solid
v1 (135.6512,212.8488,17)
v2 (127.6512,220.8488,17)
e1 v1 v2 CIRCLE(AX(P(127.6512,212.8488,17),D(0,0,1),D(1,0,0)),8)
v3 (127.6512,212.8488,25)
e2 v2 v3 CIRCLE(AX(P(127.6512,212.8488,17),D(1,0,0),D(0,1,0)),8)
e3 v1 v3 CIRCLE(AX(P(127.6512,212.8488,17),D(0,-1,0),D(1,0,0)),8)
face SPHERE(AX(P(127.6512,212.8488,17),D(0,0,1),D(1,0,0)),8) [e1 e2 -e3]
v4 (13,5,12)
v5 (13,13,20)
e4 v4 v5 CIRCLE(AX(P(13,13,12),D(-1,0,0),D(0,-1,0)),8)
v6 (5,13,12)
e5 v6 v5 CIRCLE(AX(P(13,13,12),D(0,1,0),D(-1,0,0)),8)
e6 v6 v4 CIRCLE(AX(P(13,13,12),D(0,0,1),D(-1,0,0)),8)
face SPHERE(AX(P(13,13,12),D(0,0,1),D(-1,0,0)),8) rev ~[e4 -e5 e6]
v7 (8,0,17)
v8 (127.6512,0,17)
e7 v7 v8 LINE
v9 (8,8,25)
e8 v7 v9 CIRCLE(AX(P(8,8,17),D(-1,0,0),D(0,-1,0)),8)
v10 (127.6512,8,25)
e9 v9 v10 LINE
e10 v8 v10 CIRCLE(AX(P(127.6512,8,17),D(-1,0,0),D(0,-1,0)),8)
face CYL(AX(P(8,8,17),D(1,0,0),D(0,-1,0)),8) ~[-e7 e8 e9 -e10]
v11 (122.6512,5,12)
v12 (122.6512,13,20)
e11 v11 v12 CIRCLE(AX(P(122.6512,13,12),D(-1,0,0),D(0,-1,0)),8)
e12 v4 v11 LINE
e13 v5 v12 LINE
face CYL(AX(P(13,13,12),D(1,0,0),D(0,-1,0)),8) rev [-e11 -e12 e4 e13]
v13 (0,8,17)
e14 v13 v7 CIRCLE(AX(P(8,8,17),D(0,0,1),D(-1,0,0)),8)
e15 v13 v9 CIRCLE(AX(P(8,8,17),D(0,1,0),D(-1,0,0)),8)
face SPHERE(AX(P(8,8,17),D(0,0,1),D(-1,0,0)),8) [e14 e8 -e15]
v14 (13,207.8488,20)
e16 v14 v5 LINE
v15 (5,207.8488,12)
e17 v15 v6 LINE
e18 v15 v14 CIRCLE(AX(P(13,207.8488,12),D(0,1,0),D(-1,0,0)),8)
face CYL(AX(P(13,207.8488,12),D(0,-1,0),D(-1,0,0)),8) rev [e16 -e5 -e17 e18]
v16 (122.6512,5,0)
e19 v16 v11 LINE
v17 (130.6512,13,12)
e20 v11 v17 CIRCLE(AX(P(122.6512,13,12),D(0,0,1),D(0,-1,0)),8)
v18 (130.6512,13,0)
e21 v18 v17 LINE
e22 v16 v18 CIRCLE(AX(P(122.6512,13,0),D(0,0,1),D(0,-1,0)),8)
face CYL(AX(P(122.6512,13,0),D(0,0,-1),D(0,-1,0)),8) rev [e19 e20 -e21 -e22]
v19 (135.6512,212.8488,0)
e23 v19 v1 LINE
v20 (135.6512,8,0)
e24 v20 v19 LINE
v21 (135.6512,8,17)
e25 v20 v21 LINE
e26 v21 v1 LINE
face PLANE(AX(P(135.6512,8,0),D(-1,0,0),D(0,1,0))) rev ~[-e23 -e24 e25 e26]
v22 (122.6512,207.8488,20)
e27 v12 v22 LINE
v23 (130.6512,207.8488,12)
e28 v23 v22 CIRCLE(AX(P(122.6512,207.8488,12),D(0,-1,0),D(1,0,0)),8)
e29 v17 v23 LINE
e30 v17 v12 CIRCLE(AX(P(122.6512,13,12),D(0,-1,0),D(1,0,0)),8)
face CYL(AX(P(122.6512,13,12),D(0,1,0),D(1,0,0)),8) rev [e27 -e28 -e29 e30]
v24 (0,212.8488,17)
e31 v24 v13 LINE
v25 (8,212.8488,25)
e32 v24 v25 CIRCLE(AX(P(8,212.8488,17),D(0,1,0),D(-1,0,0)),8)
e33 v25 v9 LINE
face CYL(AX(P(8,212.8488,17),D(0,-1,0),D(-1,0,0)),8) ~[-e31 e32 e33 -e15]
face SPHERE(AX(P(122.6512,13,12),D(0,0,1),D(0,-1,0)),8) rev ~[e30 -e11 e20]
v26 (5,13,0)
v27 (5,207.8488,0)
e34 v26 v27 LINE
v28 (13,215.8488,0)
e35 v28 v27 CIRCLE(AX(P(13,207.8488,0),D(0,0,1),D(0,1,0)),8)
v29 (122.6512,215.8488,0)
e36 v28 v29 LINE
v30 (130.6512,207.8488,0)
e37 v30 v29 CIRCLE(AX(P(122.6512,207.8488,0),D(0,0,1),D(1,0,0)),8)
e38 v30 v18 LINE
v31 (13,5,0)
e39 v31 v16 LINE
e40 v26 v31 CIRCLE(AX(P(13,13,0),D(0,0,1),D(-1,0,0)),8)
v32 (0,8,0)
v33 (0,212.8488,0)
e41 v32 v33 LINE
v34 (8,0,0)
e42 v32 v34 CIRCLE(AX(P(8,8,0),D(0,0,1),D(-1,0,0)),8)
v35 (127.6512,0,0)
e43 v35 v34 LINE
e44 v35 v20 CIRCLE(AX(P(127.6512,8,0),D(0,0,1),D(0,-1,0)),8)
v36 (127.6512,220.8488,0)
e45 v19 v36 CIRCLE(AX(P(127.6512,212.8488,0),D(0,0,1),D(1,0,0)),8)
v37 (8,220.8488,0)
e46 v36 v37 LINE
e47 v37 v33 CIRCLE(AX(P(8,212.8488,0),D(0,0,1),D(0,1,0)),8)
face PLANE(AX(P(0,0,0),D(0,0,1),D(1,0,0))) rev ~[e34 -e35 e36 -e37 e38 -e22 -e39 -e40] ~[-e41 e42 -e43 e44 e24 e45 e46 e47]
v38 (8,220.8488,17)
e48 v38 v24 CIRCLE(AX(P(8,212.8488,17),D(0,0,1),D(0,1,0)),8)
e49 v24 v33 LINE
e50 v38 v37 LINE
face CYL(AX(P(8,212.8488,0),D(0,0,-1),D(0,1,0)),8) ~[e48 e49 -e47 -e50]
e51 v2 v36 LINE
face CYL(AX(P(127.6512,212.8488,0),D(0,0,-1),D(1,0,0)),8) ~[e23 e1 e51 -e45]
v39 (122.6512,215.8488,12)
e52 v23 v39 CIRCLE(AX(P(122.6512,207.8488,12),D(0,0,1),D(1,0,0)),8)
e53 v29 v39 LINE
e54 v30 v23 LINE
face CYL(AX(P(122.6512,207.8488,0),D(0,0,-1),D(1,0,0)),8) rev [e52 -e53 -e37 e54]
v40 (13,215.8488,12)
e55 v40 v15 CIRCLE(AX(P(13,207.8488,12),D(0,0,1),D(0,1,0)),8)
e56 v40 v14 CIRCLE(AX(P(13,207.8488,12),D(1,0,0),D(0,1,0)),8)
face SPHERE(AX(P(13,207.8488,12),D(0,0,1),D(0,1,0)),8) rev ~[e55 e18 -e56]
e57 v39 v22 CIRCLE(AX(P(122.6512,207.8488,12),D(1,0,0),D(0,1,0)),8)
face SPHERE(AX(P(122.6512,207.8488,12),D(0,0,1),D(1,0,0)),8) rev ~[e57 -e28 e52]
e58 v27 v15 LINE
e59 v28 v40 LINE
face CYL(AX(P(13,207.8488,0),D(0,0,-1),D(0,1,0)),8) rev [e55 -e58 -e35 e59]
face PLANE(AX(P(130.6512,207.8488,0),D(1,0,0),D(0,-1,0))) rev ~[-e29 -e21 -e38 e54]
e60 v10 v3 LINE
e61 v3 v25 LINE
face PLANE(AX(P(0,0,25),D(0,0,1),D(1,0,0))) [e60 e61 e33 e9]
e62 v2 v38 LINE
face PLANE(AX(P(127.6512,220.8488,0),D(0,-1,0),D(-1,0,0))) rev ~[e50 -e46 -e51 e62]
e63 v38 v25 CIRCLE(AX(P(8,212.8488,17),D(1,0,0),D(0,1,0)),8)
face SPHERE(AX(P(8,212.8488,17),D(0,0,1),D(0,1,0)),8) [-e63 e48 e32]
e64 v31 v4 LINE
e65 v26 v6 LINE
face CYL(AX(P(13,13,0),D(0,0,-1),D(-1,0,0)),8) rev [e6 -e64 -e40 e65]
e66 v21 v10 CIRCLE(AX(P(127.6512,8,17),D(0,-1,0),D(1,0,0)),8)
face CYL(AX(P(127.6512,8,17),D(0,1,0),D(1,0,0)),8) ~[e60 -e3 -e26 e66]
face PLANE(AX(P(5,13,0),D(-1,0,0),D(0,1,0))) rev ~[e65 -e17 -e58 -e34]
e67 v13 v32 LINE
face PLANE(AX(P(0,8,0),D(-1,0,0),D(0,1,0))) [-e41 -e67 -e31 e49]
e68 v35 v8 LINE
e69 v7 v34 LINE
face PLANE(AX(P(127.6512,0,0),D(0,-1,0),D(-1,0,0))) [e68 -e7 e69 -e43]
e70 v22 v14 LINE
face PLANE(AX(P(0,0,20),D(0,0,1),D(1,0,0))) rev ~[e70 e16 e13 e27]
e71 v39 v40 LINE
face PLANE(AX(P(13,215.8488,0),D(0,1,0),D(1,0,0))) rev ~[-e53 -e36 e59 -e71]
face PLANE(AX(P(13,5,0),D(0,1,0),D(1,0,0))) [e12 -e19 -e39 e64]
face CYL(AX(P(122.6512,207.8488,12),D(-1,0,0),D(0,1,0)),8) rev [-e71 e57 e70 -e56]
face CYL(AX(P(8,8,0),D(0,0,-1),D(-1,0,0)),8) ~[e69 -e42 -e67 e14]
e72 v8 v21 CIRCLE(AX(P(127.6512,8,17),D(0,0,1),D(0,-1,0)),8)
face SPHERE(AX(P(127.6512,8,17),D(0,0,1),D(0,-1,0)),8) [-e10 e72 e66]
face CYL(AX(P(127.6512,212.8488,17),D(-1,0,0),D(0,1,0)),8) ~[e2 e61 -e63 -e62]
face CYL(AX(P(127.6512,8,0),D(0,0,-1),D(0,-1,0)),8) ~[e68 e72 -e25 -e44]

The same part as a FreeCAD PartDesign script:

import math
import FreeCAD as App
import Part
import Sketcher
from FreeCAD import Vector


def edges_at(feature, points):
    """Names of the edges that pass closest to the given points."""
    edges = feature.Shape.Edges
    near = lambda p: min(range(len(edges)), key=lambda i: edges[i].distToShape(Part.Vertex(*p))[0])
    return sorted({f"Edge{near(p) + 1}" for p in points})

doc = App.newDocument("Part")
body = doc.addObject("PartDesign::Body", "Body")

# Sketch on XY plane
sketch1 = doc.addObject("Sketcher::SketchObject", "Sketch")
body.addObject(sketch1)
sketch1.AttachmentSupport = (doc.XY_Plane, [""])
sketch1.MapMode = "FlatFace"
sketch1.addGeometry(Part.LineSegment(Vector(8, 0, 0), Vector(128, 0, 0)), False)
sketch1.addGeometry(Part.ArcOfCircle(Part.Circle(Vector(128, 8, 0), Vector(0, 0, 1), 8), math.radians(-90), math.radians(0)), False)
sketch1.addGeometry(Part.LineSegment(Vector(136, 8, 0), Vector(136, 213, 0)), False)
sketch1.addGeometry(Part.ArcOfCircle(Part.Circle(Vector(128, 213, 0), Vector(0, 0, 1), 8), math.radians(0), math.radians(90)), False)
sketch1.addGeometry(Part.LineSegment(Vector(128, 221, 0), Vector(8, 221, 0)), False)
sketch1.addGeometry(Part.ArcOfCircle(Part.Circle(Vector(8, 213, 0), Vector(0, 0, 1), 8), math.radians(90), math.radians(180)), False)
sketch1.addGeometry(Part.LineSegment(Vector(0, 213, 0), Vector(0, 8, 0)), False)
sketch1.addGeometry(Part.ArcOfCircle(Part.Circle(Vector(8, 8, 0), Vector(0, 0, 1), 8), math.radians(180), math.radians(270)), False)
sketch1.addGeometry(Part.ArcOfCircle(Part.Circle(Vector(13, 13, 0), Vector(0, 0, 1), 8), math.radians(180), math.radians(270)), False)
sketch1.addGeometry(Part.LineSegment(Vector(5, 13, 0), Vector(5, 208, 0)), False)
sketch1.addGeometry(Part.ArcOfCircle(Part.Circle(Vector(13, 208, 0), Vector(0, 0, 1), 8), math.radians(90), math.radians(180)), False)
sketch1.addGeometry(Part.LineSegment(Vector(13, 216, 0), Vector(123, 216, 0)), False)
sketch1.addGeometry(Part.ArcOfCircle(Part.Circle(Vector(123, 208, 0), Vector(0, 0, 1), 8), math.radians(0), math.radians(90)), False)
sketch1.addGeometry(Part.LineSegment(Vector(131, 208, 0), Vector(131, 13, 0)), False)
sketch1.addGeometry(Part.ArcOfCircle(Part.Circle(Vector(123, 13, 0), Vector(0, 0, 1), 8), math.radians(-90), math.radians(0)), False)
sketch1.addGeometry(Part.LineSegment(Vector(123, 5, 0), Vector(13, 5, 0)), False)
sketch1.addConstraint(Sketcher.Constraint("Tangent", 0, 2, 1, 1))
sketch1.addConstraint(Sketcher.Constraint("Tangent", 1, 2, 2, 1))
sketch1.addConstraint(Sketcher.Constraint("Tangent", 2, 2, 3, 1))
sketch1.addConstraint(Sketcher.Constraint("Tangent", 3, 2, 4, 1))
sketch1.addConstraint(Sketcher.Constraint("Tangent", 4, 2, 5, 1))
sketch1.addConstraint(Sketcher.Constraint("Tangent", 5, 2, 6, 1))
sketch1.addConstraint(Sketcher.Constraint("Tangent", 6, 2, 7, 1))
sketch1.addConstraint(Sketcher.Constraint("Tangent", 7, 2, 0, 1))
sketch1.addConstraint(Sketcher.Constraint("Tangent", 8, 1, 9, 1))
sketch1.addConstraint(Sketcher.Constraint("Tangent", 9, 2, 10, 2))
sketch1.addConstraint(Sketcher.Constraint("Tangent", 10, 1, 11, 1))
sketch1.addConstraint(Sketcher.Constraint("Tangent", 11, 2, 12, 2))
sketch1.addConstraint(Sketcher.Constraint("Tangent", 12, 1, 13, 1))
sketch1.addConstraint(Sketcher.Constraint("Tangent", 13, 2, 14, 2))
sketch1.addConstraint(Sketcher.Constraint("Tangent", 14, 1, 15, 1))
sketch1.addConstraint(Sketcher.Constraint("Tangent", 15, 2, 8, 2))
sketch1.addConstraint(Sketcher.Constraint("Horizontal", 0))
sketch1.addConstraint(Sketcher.Constraint("Vertical", 2))
sketch1.addConstraint(Sketcher.Constraint("Horizontal", 4))
sketch1.addConstraint(Sketcher.Constraint("Vertical", 6))
sketch1.addConstraint(Sketcher.Constraint("Vertical", 9))
sketch1.addConstraint(Sketcher.Constraint("Horizontal", 11))
sketch1.addConstraint(Sketcher.Constraint("Vertical", 13))
sketch1.addConstraint(Sketcher.Constraint("Horizontal", 15))
sketch1.addConstraint(Sketcher.Constraint("Equal", 1, 3))
sketch1.addConstraint(Sketcher.Constraint("Equal", 3, 5))
sketch1.addConstraint(Sketcher.Constraint("Equal", 5, 7))
sketch1.addConstraint(Sketcher.Constraint("Equal", 7, 8))
sketch1.addConstraint(Sketcher.Constraint("Equal", 8, 10))
sketch1.addConstraint(Sketcher.Constraint("Equal", 10, 12))
sketch1.addConstraint(Sketcher.Constraint("Equal", 12, 14))
sketch1.addConstraint(Sketcher.Constraint("PointOnObject", 0, 2, -1))
sketch1.addConstraint(Sketcher.Constraint("PointOnObject", 5, 2, -2))
sketch1.addConstraint(Sketcher.Constraint("Radius", 1, 8.0))
sketch1.addConstraint(Sketcher.Constraint("DistanceX", -1, 1, 8, 3, 13.0))
sketch1.addConstraint(Sketcher.Constraint("DistanceY", -1, 1, 8, 3, 13.0))
sketch1.addConstraint(Sketcher.Constraint("DistanceY", 10, 3, 5, 3, 5.0))
sketch1.addConstraint(Sketcher.Constraint("DistanceX", 12, 3, 3, 3, 5.0))
sketch1.addConstraint(Sketcher.Constraint("DistanceX", 0, 1, 0, 2, 119.6512))
sketch1.addConstraint(Sketcher.Constraint("DistanceY", 2, 1, 2, 2, 204.8488))
pad1 = doc.addObject("PartDesign::Pad", "Pad")
body.addObject(pad1)
pad1.Profile = sketch1
pad1.Length = 20

# Sketch on XY plane
sketch2 = doc.addObject("Sketcher::SketchObject", "Sketch001")
body.addObject(sketch2)
sketch2.AttachmentSupport = (doc.XY_Plane, [""])
sketch2.MapMode = "FlatFace"
sketch2.AttachmentOffset = App.Placement(Vector(0, 0, 20), App.Rotation())
sketch2.addGeometry(Part.ArcOfCircle(Part.Circle(Vector(8, 8, 0), Vector(0, 0, 1), 8), math.radians(180), math.radians(270)), False)
sketch2.addGeometry(Part.LineSegment(Vector(8, 0, 0), Vector(128, 0, 0)), False)
sketch2.addGeometry(Part.ArcOfCircle(Part.Circle(Vector(128, 8, 0), Vector(0, 0, 1), 8), math.radians(-90), math.radians(0)), False)
sketch2.addGeometry(Part.LineSegment(Vector(136, 8, 0), Vector(136, 213, 0)), False)
sketch2.addGeometry(Part.ArcOfCircle(Part.Circle(Vector(128, 213, 0), Vector(0, 0, 1), 8), math.radians(0), math.radians(90)), False)
sketch2.addGeometry(Part.LineSegment(Vector(128, 221, 0), Vector(8, 221, 0)), False)
sketch2.addGeometry(Part.ArcOfCircle(Part.Circle(Vector(8, 213, 0), Vector(0, 0, 1), 8), math.radians(90), math.radians(180)), False)
sketch2.addGeometry(Part.LineSegment(Vector(0, 213, 0), Vector(0, 8, 0)), False)
sketch2.addConstraint(Sketcher.Constraint("Tangent", 0, 2, 1, 1))
sketch2.addConstraint(Sketcher.Constraint("Tangent", 1, 2, 2, 1))
sketch2.addConstraint(Sketcher.Constraint("Tangent", 2, 2, 3, 1))
sketch2.addConstraint(Sketcher.Constraint("Tangent", 3, 2, 4, 1))
sketch2.addConstraint(Sketcher.Constraint("Tangent", 4, 2, 5, 1))
sketch2.addConstraint(Sketcher.Constraint("Tangent", 5, 2, 6, 1))
sketch2.addConstraint(Sketcher.Constraint("Tangent", 6, 2, 7, 1))
sketch2.addConstraint(Sketcher.Constraint("Tangent", 7, 2, 0, 1))
sketch2.addConstraint(Sketcher.Constraint("Horizontal", 1))
sketch2.addConstraint(Sketcher.Constraint("Vertical", 3))
sketch2.addConstraint(Sketcher.Constraint("Horizontal", 5))
sketch2.addConstraint(Sketcher.Constraint("Vertical", 7))
sketch2.addConstraint(Sketcher.Constraint("Equal", 0, 2))
sketch2.addConstraint(Sketcher.Constraint("Equal", 2, 4))
sketch2.addConstraint(Sketcher.Constraint("Equal", 4, 6))
sketch2.addConstraint(Sketcher.Constraint("PointOnObject", 0, 2, -1))
sketch2.addConstraint(Sketcher.Constraint("PointOnObject", 6, 2, -2))
sketch2.addConstraint(Sketcher.Constraint("Radius", 0, 8.0))
sketch2.addConstraint(Sketcher.Constraint("DistanceX", 1, 1, 1, 2, 119.6512))
sketch2.addConstraint(Sketcher.Constraint("DistanceY", 3, 1, 3, 2, 204.8488))
pad2 = doc.addObject("PartDesign::Pad", "Pad001")
body.addObject(pad2)
pad2.Profile = sketch2
pad2.Length = 5
doc.recompute()

fillet = doc.addObject("PartDesign::Fillet", "Fillet")
body.addObject(fillet)
fillet.Base = (pad2, edges_at(pad2, [
    (133.308, 218.506, 25),
    (67.826, 220.849, 25),
    (2.343, 218.506, 25),
    (0, 110.424, 25),
    (2.343, 2.343, 25),
    (67.826, 0, 25),
    (133.308, 2.343, 25),
    (135.651, 110.424, 25),
    (128.308, 7.343, 20),
    (67.826, 5, 20),
    (7.343, 7.343, 20),
    (5, 110.424, 20),
    (7.343, 213.506, 20),
    (67.826, 215.849, 20),
    (128.308, 213.506, 20),
    (130.651, 110.424, 20),
]))
fillet.Radius = 8

doc.recompute()
